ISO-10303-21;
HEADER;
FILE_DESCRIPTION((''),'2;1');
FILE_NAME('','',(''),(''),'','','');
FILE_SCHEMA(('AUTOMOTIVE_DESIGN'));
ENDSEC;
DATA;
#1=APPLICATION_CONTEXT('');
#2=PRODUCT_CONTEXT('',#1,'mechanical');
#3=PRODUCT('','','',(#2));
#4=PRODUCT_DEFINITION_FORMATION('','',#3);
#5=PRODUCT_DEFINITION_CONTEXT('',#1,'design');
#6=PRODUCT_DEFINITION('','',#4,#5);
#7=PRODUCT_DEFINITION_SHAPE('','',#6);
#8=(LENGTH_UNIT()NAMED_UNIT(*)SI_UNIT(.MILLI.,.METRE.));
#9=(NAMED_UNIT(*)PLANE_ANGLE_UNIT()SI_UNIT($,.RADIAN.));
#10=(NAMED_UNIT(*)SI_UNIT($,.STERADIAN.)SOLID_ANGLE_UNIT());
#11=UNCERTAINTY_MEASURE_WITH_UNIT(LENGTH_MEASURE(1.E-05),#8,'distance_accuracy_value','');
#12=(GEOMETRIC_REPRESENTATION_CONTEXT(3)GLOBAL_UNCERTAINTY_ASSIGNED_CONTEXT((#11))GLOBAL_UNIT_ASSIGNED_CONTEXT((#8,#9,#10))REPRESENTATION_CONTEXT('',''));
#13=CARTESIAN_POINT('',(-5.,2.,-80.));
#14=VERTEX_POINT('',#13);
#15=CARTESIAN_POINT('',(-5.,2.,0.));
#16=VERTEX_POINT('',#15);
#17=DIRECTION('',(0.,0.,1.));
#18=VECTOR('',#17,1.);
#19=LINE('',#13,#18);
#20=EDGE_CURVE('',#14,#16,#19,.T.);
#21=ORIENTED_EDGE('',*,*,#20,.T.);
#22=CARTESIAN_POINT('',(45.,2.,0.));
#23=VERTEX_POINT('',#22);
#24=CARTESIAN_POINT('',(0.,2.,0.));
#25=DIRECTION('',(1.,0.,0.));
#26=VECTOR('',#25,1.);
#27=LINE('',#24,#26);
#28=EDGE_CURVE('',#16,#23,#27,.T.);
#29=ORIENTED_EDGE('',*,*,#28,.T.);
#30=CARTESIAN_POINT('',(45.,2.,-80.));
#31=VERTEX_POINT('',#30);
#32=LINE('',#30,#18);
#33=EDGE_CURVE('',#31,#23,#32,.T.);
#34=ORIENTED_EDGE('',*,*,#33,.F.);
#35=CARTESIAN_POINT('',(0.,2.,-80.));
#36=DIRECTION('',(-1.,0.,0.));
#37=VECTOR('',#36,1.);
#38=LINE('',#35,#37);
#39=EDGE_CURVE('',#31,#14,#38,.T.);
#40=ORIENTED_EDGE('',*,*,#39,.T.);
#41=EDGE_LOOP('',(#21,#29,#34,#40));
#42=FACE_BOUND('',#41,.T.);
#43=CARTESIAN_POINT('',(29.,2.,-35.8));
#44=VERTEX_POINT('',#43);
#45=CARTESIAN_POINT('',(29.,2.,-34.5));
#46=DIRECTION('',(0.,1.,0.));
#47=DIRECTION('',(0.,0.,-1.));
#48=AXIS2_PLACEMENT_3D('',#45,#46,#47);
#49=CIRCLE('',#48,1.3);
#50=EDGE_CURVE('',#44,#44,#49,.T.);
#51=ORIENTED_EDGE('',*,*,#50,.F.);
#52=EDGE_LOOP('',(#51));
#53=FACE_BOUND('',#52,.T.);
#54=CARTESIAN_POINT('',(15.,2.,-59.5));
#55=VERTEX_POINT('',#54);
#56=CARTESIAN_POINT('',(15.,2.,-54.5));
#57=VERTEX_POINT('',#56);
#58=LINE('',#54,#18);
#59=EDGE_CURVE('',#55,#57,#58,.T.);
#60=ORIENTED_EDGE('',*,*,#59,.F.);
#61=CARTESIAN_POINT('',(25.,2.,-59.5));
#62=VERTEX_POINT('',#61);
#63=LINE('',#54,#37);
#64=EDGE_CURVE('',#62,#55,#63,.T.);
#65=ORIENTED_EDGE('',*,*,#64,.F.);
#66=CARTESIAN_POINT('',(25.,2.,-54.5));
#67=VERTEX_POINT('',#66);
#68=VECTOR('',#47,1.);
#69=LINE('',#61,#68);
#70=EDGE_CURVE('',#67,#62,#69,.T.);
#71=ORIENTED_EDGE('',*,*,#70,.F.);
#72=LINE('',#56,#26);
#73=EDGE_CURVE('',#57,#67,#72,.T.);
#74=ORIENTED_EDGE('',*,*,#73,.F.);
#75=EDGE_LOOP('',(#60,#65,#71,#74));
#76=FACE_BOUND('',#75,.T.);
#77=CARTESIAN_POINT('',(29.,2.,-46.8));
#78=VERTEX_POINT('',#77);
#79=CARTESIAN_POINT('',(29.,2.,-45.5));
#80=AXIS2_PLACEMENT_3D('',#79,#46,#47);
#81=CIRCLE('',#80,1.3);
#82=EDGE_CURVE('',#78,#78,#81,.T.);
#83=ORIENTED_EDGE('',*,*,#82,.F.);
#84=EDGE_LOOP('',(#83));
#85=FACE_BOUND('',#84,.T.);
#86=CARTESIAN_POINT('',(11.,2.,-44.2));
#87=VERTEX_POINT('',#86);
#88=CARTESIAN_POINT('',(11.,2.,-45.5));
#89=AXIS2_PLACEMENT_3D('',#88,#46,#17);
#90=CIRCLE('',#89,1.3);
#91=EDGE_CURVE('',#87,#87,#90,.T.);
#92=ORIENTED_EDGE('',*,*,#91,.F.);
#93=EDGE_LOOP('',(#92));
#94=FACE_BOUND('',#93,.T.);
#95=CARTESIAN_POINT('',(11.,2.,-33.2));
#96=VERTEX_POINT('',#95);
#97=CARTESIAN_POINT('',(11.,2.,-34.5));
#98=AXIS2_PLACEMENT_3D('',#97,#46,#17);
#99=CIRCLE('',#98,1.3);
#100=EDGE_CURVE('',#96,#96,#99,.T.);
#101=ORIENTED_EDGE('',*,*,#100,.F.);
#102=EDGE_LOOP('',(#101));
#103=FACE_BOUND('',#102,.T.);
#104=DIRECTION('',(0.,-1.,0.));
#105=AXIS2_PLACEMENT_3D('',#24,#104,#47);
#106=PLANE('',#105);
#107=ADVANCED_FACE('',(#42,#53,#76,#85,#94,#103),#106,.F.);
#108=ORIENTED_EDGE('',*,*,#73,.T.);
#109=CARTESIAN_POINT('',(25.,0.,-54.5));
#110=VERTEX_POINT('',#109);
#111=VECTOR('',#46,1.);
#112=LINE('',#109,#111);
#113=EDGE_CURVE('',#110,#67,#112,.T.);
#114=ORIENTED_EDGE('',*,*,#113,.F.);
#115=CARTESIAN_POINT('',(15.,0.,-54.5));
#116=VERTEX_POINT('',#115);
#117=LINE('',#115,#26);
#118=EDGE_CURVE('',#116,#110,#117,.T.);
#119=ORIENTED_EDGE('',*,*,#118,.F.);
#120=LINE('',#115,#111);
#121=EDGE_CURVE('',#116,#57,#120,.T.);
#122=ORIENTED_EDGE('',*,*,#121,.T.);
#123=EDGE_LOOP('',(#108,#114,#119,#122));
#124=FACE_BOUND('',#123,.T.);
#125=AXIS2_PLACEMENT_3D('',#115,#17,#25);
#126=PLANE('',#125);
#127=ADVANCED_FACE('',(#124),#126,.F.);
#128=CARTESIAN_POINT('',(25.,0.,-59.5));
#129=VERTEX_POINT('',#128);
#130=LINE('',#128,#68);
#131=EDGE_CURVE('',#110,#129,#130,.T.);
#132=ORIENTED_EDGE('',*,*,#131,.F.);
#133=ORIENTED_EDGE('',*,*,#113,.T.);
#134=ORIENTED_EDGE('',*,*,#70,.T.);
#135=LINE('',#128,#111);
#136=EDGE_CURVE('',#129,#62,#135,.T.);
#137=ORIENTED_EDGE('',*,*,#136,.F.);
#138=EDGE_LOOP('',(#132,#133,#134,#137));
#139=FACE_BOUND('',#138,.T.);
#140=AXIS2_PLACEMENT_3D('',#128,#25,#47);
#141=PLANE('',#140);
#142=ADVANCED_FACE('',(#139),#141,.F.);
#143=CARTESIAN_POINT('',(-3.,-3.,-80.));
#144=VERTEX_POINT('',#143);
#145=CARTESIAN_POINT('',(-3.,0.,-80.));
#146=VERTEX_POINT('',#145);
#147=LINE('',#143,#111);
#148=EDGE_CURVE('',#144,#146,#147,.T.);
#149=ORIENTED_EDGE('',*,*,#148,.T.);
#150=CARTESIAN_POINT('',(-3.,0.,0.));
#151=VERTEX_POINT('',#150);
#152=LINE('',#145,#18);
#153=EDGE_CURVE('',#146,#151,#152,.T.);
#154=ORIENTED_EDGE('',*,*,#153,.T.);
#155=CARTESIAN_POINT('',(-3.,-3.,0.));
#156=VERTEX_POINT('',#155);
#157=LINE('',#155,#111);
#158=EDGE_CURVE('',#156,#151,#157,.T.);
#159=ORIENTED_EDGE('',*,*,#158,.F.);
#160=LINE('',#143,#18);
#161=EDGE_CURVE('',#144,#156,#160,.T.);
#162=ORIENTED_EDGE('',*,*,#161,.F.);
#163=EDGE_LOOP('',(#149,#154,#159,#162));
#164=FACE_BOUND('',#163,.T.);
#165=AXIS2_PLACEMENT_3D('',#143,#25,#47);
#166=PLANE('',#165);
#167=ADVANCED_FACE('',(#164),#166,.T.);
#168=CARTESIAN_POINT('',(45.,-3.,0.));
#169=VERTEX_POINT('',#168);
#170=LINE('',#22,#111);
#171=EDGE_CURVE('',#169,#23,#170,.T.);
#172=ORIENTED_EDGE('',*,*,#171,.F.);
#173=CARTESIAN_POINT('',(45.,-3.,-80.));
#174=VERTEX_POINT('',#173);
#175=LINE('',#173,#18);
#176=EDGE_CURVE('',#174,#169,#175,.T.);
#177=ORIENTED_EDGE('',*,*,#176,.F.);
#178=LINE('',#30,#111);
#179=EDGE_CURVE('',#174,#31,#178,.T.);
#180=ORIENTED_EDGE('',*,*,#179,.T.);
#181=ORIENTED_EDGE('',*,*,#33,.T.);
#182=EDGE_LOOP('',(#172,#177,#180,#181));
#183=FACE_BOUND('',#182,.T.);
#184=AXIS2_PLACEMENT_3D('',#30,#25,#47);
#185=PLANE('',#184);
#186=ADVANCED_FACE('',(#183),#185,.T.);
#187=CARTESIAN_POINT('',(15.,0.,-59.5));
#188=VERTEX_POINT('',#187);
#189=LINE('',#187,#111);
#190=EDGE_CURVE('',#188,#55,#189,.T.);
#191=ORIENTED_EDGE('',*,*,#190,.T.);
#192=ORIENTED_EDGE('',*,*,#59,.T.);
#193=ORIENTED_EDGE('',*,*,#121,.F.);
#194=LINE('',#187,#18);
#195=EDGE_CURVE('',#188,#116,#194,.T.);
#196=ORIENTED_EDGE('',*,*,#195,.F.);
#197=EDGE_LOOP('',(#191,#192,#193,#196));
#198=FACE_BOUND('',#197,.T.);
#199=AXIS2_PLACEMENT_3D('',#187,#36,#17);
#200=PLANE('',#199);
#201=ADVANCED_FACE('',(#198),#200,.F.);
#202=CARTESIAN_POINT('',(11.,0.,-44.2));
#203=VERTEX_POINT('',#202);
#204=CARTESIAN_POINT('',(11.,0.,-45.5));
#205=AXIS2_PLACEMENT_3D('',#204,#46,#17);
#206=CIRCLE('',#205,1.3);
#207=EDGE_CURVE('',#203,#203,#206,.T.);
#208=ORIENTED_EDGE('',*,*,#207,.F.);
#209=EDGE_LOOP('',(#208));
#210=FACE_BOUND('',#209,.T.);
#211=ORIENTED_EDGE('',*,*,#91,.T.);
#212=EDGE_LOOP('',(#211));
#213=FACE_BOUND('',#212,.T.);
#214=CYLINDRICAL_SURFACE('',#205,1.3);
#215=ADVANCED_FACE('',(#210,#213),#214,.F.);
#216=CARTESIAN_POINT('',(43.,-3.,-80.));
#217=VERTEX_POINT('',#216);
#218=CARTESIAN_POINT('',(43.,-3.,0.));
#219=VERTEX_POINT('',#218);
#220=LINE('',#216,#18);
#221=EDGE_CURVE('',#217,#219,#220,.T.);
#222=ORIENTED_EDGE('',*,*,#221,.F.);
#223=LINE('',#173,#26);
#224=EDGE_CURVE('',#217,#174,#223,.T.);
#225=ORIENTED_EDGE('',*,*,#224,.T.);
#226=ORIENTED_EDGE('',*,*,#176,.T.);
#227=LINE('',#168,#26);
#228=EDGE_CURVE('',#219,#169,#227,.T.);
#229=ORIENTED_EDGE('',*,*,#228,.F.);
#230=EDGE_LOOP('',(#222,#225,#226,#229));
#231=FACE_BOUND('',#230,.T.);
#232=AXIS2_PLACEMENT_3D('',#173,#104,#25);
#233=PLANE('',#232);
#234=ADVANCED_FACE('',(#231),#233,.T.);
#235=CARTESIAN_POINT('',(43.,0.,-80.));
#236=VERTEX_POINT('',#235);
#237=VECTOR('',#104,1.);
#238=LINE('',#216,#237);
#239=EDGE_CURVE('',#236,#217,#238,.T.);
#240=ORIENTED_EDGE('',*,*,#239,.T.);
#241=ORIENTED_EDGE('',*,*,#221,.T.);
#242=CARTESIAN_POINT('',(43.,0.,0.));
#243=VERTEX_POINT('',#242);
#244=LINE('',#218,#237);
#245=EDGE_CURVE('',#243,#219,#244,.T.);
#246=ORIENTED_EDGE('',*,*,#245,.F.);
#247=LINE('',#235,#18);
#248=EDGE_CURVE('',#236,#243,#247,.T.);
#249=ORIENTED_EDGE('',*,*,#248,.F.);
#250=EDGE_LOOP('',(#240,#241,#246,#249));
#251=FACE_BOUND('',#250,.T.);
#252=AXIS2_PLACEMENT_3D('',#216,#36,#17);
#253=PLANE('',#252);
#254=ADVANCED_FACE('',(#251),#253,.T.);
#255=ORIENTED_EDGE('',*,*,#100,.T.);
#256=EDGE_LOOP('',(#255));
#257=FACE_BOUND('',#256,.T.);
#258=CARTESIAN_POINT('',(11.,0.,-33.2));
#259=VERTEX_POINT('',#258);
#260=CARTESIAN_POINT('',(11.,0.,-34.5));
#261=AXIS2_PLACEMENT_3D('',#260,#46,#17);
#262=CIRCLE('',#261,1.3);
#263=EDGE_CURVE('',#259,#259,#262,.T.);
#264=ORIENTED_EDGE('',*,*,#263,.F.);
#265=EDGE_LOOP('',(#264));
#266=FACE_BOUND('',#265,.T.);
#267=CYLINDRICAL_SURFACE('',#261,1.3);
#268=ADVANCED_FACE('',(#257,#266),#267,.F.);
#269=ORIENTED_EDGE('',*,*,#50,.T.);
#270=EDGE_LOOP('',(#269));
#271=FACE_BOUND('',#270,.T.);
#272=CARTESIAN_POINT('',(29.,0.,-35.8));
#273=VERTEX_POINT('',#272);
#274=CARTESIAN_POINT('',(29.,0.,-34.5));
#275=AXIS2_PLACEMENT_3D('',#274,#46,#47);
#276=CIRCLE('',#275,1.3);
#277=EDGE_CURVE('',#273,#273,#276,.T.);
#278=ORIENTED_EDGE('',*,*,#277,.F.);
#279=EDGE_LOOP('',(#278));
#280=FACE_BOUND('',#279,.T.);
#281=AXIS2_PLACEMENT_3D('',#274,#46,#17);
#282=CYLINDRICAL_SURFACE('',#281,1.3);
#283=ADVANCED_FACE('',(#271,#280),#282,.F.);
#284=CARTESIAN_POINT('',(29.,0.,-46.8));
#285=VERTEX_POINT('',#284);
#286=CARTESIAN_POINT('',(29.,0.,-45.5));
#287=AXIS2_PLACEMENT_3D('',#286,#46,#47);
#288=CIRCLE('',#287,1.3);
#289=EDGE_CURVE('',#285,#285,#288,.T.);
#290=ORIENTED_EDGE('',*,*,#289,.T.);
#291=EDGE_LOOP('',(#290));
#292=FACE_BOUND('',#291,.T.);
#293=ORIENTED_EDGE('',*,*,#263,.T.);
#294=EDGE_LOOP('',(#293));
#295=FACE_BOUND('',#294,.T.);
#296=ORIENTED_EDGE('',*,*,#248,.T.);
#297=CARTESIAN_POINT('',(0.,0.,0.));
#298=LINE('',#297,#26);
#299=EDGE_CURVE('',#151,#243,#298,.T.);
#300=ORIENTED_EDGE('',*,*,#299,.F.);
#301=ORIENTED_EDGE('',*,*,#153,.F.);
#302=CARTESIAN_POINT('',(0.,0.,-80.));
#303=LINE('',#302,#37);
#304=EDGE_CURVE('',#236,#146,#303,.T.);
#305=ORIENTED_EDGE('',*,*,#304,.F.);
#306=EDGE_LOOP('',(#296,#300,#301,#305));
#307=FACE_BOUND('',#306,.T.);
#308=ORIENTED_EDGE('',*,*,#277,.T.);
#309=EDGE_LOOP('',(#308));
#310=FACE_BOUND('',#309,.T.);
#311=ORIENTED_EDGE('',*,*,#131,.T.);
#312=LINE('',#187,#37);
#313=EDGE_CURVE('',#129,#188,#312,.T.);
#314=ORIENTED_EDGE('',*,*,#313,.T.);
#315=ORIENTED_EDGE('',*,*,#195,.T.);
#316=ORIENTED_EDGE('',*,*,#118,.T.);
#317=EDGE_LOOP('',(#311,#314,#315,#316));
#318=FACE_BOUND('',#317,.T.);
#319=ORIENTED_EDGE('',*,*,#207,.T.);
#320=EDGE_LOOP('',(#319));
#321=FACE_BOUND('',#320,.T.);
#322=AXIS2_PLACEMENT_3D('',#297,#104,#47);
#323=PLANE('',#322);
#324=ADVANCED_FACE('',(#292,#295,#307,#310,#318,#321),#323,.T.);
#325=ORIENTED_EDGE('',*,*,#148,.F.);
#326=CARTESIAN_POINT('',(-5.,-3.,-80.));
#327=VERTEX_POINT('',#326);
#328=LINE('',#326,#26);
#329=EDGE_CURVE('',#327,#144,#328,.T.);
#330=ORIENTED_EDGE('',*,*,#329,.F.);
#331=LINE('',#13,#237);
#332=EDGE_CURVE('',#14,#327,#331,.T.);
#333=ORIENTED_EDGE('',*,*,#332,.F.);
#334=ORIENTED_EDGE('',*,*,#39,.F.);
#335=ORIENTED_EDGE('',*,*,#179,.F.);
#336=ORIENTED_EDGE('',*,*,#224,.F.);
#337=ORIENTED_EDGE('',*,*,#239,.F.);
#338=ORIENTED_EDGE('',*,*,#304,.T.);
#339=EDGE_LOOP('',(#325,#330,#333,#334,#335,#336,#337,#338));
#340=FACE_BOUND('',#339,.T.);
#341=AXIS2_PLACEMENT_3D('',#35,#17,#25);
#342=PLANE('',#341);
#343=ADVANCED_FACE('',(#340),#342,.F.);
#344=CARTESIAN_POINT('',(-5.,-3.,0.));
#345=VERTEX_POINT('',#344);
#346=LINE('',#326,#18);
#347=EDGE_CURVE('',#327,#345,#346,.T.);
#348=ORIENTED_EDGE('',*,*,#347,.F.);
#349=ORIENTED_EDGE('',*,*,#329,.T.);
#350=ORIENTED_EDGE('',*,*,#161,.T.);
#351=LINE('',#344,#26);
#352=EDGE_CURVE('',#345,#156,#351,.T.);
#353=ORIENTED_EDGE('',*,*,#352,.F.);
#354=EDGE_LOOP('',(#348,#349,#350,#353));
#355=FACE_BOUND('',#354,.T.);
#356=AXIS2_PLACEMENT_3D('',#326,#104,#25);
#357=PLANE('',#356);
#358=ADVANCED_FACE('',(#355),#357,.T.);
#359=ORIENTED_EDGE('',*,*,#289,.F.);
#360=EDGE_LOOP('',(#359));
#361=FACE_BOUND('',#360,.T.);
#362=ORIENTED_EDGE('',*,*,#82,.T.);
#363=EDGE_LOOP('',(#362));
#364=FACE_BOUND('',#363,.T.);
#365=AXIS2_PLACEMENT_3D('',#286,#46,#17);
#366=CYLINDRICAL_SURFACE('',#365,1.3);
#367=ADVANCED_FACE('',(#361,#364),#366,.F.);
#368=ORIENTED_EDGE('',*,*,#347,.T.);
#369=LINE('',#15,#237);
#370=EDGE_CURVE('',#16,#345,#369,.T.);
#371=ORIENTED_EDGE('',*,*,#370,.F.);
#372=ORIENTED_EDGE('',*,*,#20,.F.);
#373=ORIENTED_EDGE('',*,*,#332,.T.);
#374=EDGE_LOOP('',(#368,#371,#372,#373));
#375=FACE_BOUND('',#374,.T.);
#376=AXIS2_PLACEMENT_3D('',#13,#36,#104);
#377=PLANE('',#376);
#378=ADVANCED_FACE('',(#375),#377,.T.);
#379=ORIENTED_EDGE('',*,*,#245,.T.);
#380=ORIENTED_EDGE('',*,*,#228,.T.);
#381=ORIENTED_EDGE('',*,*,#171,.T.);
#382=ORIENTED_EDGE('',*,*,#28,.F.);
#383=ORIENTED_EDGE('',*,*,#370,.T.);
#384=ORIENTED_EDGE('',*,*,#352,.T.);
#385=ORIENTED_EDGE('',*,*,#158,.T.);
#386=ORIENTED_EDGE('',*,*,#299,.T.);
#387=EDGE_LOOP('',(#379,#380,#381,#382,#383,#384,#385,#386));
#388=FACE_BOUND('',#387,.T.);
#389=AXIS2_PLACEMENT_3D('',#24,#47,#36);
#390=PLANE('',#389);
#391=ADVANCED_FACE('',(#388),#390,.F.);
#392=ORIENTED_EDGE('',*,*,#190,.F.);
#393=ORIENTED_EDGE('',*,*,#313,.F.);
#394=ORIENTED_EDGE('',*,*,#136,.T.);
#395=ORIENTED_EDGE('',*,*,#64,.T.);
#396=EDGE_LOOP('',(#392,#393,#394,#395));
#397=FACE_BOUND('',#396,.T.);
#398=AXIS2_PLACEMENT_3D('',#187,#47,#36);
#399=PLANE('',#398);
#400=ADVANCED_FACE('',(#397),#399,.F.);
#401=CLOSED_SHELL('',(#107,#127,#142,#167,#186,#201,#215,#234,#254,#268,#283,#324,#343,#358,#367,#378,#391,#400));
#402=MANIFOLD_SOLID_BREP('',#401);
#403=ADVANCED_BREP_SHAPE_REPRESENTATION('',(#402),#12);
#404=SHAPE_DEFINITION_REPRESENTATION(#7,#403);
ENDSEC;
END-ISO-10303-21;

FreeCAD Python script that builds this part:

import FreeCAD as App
import Part
import Sketcher

V = App.Vector

doc = App.newDocument("Part")
params = doc.addObject("Spreadsheet::Sheet", "Params")
for row, (alias, value) in enumerate([
    ("sketch1_width", "40 mm"),
    ("sketch1_height", "80 mm"),
    ("pad1_length", "2 mm"),
    ("sketch2_width", "5 mm"),
    ("sketch2_width2", "2 mm"),
    ("pad2_length", "80 mm"),
    ("sketch3_diameter", "2.6 mm"),
    ("sketch3_width", "10 mm"),
    ("sketch3_height", "5 mm"),
    ("pocket1_length", "2 mm"),
], start=1):
    params.set(f"A{row}", alias)
    params.set(f"B{row}", "=" + value)
    params.setAlias(f"B{row}", alias)

body = doc.addObject("PartDesign::Body", "Body")

# Sketch on XZ plane
sketch1 = body.newObject("Sketcher::SketchObject", "Sketch")
sketch1.AttachmentSupport = (doc.getObject("XZ_Plane"), [""])
sketch1.MapMode = "FlatFace"
sketch1.addGeometry(Part.LineSegment(V(0, -80, 0), V(0, 0, 0)), False)
sketch1.addGeometry(Part.LineSegment(V(0, 0, 0), V(40, 0, 0)), False)
sketch1.addGeometry(Part.LineSegment(V(40, 0, 0), V(40, -80, 0)), False)
sketch1.addGeometry(Part.LineSegment(V(40, -80, 0), V(0, -80, 0)), False)
sketch1.addConstraint(Sketcher.Constraint("Coincident", 0, 2, 1, 1))
sketch1.addConstraint(Sketcher.Constraint("Coincident", 1, 2, 2, 1))
sketch1.addConstraint(Sketcher.Constraint("Coincident", 2, 2, 3, 1))
sketch1.addConstraint(Sketcher.Constraint("Coincident", 3, 2, 0, 1))
sketch1.addConstraint(Sketcher.Constraint("Vertical", 0))
sketch1.addConstraint(Sketcher.Constraint("Horizontal", 1))
sketch1.addConstraint(Sketcher.Constraint("Vertical", 2))
sketch1.addConstraint(Sketcher.Constraint("Horizontal", 3))
sketch1.addConstraint(Sketcher.Constraint("Coincident", 0, 2, -1, 1))
sketch1.addConstraint(Sketcher.Constraint("DistanceX", 1, 1, 1, 2, 40.0))
sketch1.addConstraint(Sketcher.Constraint("DistanceY", 0, 1, 0, 2, 80.0))
sketch1.setExpression("Constraints[9]", "Params.sketch1_width")
sketch1.setExpression("Constraints[10]", "Params.sketch1_height")
pad1 = body.newObject("PartDesign::Pad", "Pad")
pad1.Profile = sketch1
pad1.setExpression("Length", "Params.pad1_length")
pad1.Reversed = True

# Sketch on XY plane
sketch2 = body.newObject("Sketcher::SketchObject", "Sketch001")
sketch2.AttachmentSupport = (doc.getObject("XY_Plane"), [""])
sketch2.MapMode = "FlatFace"
sketch2.addGeometry(Part.LineSegment(V(0, 2, 0), V(-5, 2, 0)), False)
sketch2.addGeometry(Part.LineSegment(V(-5, 2, 0), V(-5, -3, 0)), False)
sketch2.addGeometry(Part.LineSegment(V(-5, -3, 0), V(-3, -3, 0)), False)
sketch2.addGeometry(Part.LineSegment(V(-3, -3, 0), V(-3, 0, 0)), False)
sketch2.addGeometry(Part.LineSegment(V(-3, 0, 0), V(0, 0, 0)), False)
sketch2.addGeometry(Part.LineSegment(V(0, 0, 0), V(0, 2, 0)), False)
sketch2.addGeometry(Part.LineSegment(V(40, 0, 0), V(43, 0, 0)), False)
sketch2.addGeometry(Part.LineSegment(V(43, 0, 0), V(43, -3, 0)), False)
sketch2.addGeometry(Part.LineSegment(V(43, -3, 0), V(45, -3, 0)), False)
sketch2.addGeometry(Part.LineSegment(V(45, -3, 0), V(45, 2, 0)), False)
sketch2.addGeometry(Part.LineSegment(V(45, 2, 0), V(40, 2, 0)), False)
sketch2.addGeometry(Part.LineSegment(V(40, 2, 0), V(40, 0, 0)), False)
sketch2.addConstraint(Sketcher.Constraint("Coincident", 0, 2, 1, 1))
sketch2.addConstraint(Sketcher.Constraint("Coincident", 1, 2, 2, 1))
sketch2.addConstraint(Sketcher.Constraint("Coincident", 2, 2, 3, 1))
sketch2.addConstraint(Sketcher.Constraint("Coincident", 3, 2, 4, 1))
sketch2.addConstraint(Sketcher.Constraint("Coincident", 4, 2, 5, 1))
sketch2.addConstraint(Sketcher.Constraint("Coincident", 5, 2, 0, 1))
sketch2.addConstraint(Sketcher.Constraint("Coincident", 6, 2, 7, 1))
sketch2.addConstraint(Sketcher.Constraint("Coincident", 7, 2, 8, 1))
sketch2.addConstraint(Sketcher.Constraint("Coincident", 8, 2, 9, 1))
sketch2.addConstraint(Sketcher.Constraint("Coincident", 9, 2, 10, 1))
sketch2.addConstraint(Sketcher.Constraint("Coincident", 10, 2, 11, 1))
sketch2.addConstraint(Sketcher.Constraint("Coincident", 11, 2, 6, 1))
sketch2.addConstraint(Sketcher.Constraint("Horizontal", 0))
sketch2.addConstraint(Sketcher.Constraint("Vertical", 1))
sketch2.addConstraint(Sketcher.Constraint("Horizontal", 2))
sketch2.addConstraint(Sketcher.Constraint("Vertical", 3))
sketch2.addConstraint(Sketcher.Constraint("Horizontal", 4))
sketch2.addConstraint(Sketcher.Constraint("Vertical", 5))
sketch2.addConstraint(Sketcher.Constraint("Horizontal", 6))
sketch2.addConstraint(Sketcher.Constraint("Vertical", 7))
sketch2.addConstraint(Sketcher.Constraint("Horizontal", 8))
sketch2.addConstraint(Sketcher.Constraint("Vertical", 9))
sketch2.addConstraint(Sketcher.Constraint("Horizontal", 10))
sketch2.addConstraint(Sketcher.Constraint("Vertical", 11))
sketch2.addConstraint(Sketcher.Constraint("Coincident", 4, 2, -1, 1))
sketch2.addConstraint(Sketcher.Constraint("PointOnObject", 6, 2, -1))
sketch2.addConstraint(Sketcher.Constraint("Horizontal", 2, 2, 7, 2))
sketch2.addConstraint(Sketcher.Constraint("Horizontal", 5, 2, 9, 2))
sketch2.addConstraint(Sketcher.Constraint("Equal", 4, 6))
sketch2.addConstraint(Sketcher.Constraint("Equal", 2, 8))
sketch2.addConstraint(Sketcher.Constraint("Equal", 10, 1))
sketch2.addConstraint(Sketcher.Constraint("Equal", 6, 3))
sketch2.addConstraint(Sketcher.Constraint("DistanceX", 0, 2, 0, 1, 5.0))
sketch2.addConstraint(Sketcher.Constraint("DistanceX", 2, 1, 2, 2, 2.0))
sketch2.addConstraint(Sketcher.Constraint("DistanceX", -1, 1, 6, 2, 43.0))
sketch2.setExpression("Constraints[32]", "Params.sketch2_width")
sketch2.setExpression("Constraints[33]", "Params.sketch2_width2")
pad2 = body.newObject("PartDesign::Pad", "Pad001")
pad2.Profile = sketch2
pad2.setExpression("Length", "Params.pad2_length")
pad2.Reversed = True

# Sketch on XZ plane
sketch3 = body.newObject("Sketcher::SketchObject", "Sketch002")
sketch3.AttachmentSupport = (doc.getObject("XZ_Plane"), [""])
sketch3.MapMode = "FlatFace"
sketch3.AttachmentOffset = App.Placement(V(0, 0, -2), App.Rotation())
sketch3.addGeometry(Part.Circle(V(11, -45.5, 0), V(0, 0, 1), 1.3), False)
sketch3.addGeometry(Part.Circle(V(11, -34.5, 0), V(0, 0, 1), 1.3), False)
sketch3.addGeometry(Part.Circle(V(29, -45.5, 0), V(0, 0, 1), 1.3), False)
sketch3.addGeometry(Part.Circle(V(29, -34.5, 0), V(0, 0, 1), 1.3), False)
sketch3.addGeometry(Part.LineSegment(V(15, -59.5, 0), V(15, -54.5, 0)), False)
sketch3.addGeometry(Part.LineSegment(V(15, -54.5, 0), V(25, -54.5, 0)), False)
sketch3.addGeometry(Part.LineSegment(V(25, -54.5, 0), V(25, -59.5, 0)), False)
sketch3.addGeometry(Part.LineSegment(V(25, -59.5, 0), V(15, -59.5, 0)), False)
sketch3.addConstraint(Sketcher.Constraint("Coincident", 4, 2, 5, 1))
sketch3.addConstraint(Sketcher.Constraint("Coincident", 5, 2, 6, 1))
sketch3.addConstraint(Sketcher.Constraint("Coincident", 6, 2, 7, 1))
sketch3.addConstraint(Sketcher.Constraint("Coincident", 7, 2, 4, 1))
sketch3.addConstraint(Sketcher.Constraint("Vertical", 4))
sketch3.addConstraint(Sketcher.Constraint("Horizontal", 5))
sketch3.addConstraint(Sketcher.Constraint("Vertical", 6))
sketch3.addConstraint(Sketcher.Constraint("Horizontal", 7))
sketch3.addConstraint(Sketcher.Constraint("Equal", 0, 1))
sketch3.addConstraint(Sketcher.Constraint("Equal", 1, 2))
sketch3.addConstraint(Sketcher.Constraint("Equal", 2, 3))
sketch3.addConstraint(Sketcher.Constraint("Horizontal", 0, 3, 2, 3))
sketch3.addConstraint(Sketcher.Constraint("Horizontal", 1, 3, 3, 3))
sketch3.addConstraint(Sketcher.Constraint("Vertical", 0, 3, 1, 3))
sketch3.addConstraint(Sketcher.Constraint("Vertical", 2, 3, 3, 3))
sketch3.addConstraint(Sketcher.Constraint("Diameter", 0, 2.6))
sketch3.addConstraint(Sketcher.Constraint("DistanceX", 5, 1, 5, 2, 10.0))
sketch3.addConstraint(Sketcher.Constraint("DistanceY", 4, 1, 4, 2, 5.0))
sketch3.addConstraint(Sketcher.Constraint("DistanceX", -1, 1, 0, 3, 11.0))
sketch3.addConstraint(Sketcher.Constraint("DistanceX", -1, 1, 2, 3, 29.0))
sketch3.addConstraint(Sketcher.Constraint("DistanceX", -1, 1, 4, 2, 15.0))
sketch3.addConstraint(Sketcher.Constraint("DistanceY", 0, 3, 1, 3, 11.0))
sketch3.addConstraint(Sketcher.Constraint("DistanceY", 4, 2, 0, 3, 9.0))
sketch3.addConstraint(Sketcher.Constraint("DistanceY", 0, 3, -1, 1, 45.5))
sketch3.setExpression("Constraints[15]", "Params.sketch3_diameter")
sketch3.setExpression("Constraints[16]", "Params.sketch3_width")
sketch3.setExpression("Constraints[17]", "Params.sketch3_height")
pocket1 = body.newObject("PartDesign::Pocket", "Pocket")
pocket1.Profile = sketch3
pocket1.setExpression("Length", "Params.pocket1_length")
pocket1.Reversed = True

doc.recompute()
